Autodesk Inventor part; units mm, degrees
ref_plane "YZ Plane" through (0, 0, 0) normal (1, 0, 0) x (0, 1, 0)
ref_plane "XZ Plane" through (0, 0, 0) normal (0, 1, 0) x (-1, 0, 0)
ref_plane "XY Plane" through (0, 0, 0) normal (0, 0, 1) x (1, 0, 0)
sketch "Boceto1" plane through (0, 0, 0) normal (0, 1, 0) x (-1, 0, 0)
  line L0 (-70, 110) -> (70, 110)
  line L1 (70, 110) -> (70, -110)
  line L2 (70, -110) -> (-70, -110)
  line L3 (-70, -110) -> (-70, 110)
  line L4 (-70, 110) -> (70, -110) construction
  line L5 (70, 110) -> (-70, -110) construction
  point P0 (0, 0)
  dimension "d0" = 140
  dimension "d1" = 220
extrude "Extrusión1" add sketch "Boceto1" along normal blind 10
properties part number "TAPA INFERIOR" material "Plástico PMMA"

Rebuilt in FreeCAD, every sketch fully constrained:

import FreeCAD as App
import Part
import Sketcher

V = App.Vector
Q = App.Units.Quantity


def add_polygon(sketch, points):
    """Adds a closed chain of lines whose ends are joined by coincident constraints."""
    first, n = sketch.GeometryCount, len(points)
    for a, b in zip(points, points[1:] + points[:1]):
        sketch.addGeometry(Part.LineSegment(App.Vector(*a, 0), App.Vector(*b, 0)), False)
    for i in range(n):
        sketch.addConstraint(Sketcher.Constraint("Coincident", first + i, 2, first + (i + 1) % n, 1))

doc = App.newDocument("Part")
params = doc.addObject("Spreadsheet::Sheet", "Params")
for row, (alias, value) in enumerate([
    ("sketch1_width", "140 mm"),
    ("sketch1_height", "220 mm"),
    ("pad1_length", "10 mm"),
], start=1):
    params.set(f"A{row}", alias)
    params.set(f"B{row}", "=" + value)
    params.setAlias(f"B{row}", alias)

body = doc.addObject("PartDesign::Body", "Body")

# Sketch on XZ plane
sketch1 = body.newObject("Sketcher::SketchObject", "Sketch")
sketch1.AttachmentSupport = (doc.getObject("XZ_Plane"), [""])
sketch1.MapMode = "FlatFace"
add_polygon(sketch1, [(-70, 110), (70, 110), (70, -110), (-70, -110)])  # lines 0-3
sketch1.addConstraint(Sketcher.Constraint("Horizontal", 0))
sketch1.addConstraint(Sketcher.Constraint("Vertical", 1))
sketch1.addConstraint(Sketcher.Constraint("Horizontal", 2))
sketch1.addConstraint(Sketcher.Constraint("Vertical", 3))
sketch1.addConstraint(Sketcher.Constraint("Symmetric", 0, 2, 2, 2, -1, 1))
sketch1.addConstraint(Sketcher.Constraint("DistanceX", 0, 1, 0, 2, Q("140 mm")))
sketch1.addConstraint(Sketcher.Constraint("DistanceY", 1, 2, 1, 1, Q("220 mm")))
sketch1.setExpression("Constraints[9]", "Params.sketch1_width")
sketch1.setExpression("Constraints[10]", "Params.sketch1_height")
pad1 = body.newObject("PartDesign::Pad", "Pad")
pad1.Profile = sketch1
pad1.setExpression("Length", "Params.pad1_length")
pad1.Reversed = True

doc.recompute()
